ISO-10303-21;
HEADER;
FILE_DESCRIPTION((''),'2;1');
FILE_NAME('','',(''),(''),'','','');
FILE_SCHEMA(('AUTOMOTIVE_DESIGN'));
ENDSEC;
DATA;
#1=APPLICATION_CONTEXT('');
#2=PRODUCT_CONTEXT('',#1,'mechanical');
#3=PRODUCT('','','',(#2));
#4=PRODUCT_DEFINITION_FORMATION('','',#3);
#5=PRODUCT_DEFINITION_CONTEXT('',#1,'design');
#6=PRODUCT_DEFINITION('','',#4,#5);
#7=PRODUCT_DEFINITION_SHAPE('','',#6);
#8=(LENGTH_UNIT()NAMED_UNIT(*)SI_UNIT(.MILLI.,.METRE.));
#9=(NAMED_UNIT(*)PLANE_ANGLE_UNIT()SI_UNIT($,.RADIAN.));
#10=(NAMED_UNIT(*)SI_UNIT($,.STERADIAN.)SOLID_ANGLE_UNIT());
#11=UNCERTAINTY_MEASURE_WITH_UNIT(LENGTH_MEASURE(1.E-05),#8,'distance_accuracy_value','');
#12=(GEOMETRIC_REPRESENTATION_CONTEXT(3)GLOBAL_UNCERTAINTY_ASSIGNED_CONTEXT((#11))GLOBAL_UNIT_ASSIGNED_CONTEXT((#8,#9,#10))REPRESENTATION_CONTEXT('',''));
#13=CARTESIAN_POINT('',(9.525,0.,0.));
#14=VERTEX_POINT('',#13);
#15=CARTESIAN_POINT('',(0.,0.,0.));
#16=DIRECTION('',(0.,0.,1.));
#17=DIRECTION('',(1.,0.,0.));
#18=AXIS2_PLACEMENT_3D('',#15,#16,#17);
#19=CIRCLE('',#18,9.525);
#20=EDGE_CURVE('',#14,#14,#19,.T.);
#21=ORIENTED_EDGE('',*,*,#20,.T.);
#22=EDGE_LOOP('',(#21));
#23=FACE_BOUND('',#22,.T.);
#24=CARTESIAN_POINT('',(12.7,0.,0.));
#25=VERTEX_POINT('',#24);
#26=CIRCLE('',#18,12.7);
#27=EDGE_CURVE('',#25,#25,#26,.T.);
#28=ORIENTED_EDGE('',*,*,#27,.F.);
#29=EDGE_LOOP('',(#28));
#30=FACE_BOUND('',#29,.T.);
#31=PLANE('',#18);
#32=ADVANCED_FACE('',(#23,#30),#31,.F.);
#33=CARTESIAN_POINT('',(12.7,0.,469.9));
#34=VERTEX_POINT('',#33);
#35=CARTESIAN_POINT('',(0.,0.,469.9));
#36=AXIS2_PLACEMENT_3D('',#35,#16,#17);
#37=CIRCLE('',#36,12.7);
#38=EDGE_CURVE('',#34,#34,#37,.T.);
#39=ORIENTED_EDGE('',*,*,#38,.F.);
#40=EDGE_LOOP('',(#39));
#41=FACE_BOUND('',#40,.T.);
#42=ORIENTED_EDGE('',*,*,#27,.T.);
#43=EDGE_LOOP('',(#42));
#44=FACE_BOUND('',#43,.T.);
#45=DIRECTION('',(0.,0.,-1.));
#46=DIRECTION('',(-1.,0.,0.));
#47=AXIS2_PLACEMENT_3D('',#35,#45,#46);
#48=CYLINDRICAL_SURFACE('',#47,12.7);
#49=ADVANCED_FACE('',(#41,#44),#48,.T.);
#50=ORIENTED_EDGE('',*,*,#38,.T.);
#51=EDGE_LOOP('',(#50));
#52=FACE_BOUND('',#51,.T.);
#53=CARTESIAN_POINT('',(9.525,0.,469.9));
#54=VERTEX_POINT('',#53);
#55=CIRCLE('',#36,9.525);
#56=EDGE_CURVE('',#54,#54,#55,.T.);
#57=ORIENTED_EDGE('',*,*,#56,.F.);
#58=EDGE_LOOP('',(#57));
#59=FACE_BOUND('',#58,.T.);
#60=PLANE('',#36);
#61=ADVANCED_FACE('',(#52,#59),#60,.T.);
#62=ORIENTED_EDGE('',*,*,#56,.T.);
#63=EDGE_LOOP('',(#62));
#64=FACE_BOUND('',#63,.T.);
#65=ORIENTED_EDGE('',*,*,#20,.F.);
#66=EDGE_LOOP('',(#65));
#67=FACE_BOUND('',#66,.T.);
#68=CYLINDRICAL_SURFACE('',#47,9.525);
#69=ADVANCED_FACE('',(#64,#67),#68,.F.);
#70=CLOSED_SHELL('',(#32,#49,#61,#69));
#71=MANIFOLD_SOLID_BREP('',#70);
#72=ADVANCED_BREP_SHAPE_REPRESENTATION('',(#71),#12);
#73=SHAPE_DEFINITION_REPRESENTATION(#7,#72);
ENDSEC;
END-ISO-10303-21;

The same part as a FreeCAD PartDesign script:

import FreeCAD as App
import Part
import Sketcher
from FreeCAD import Vector
Q = App.Units.Quantity

doc = App.newDocument("Part")
body = doc.addObject("PartDesign::Body", "Body")

# Sketch on XY plane
sketch1 = body.newObject("Sketcher::SketchObject", "Sketch")
sketch1.AttachmentSupport = (doc.getObject("XY_Plane"), [""])
sketch1.MapMode = "FlatFace"
sketch1.addGeometry([
    Part.Circle(Vector(0, 0, 0), Vector(0, 0, 1), 13),
    Part.Circle(Vector(0, 0, 0), Vector(0, 0, 1), 10),
], False)
sketch1.addConstraint([
    Sketcher.Constraint("Coincident", 0, 3, -1, 1),
    Sketcher.Constraint("Coincident", 1, 3, -1, 1),
    Sketcher.Constraint("Diameter", 0, Q("1 in")),
    Sketcher.Constraint("Diameter", 1, Q("0.75 in")),
])
pad1 = body.newObject("PartDesign::Pad", "Pad")
pad1.Profile = sketch1
pad1.Length = Q("18.5 in")

doc.recompute()
